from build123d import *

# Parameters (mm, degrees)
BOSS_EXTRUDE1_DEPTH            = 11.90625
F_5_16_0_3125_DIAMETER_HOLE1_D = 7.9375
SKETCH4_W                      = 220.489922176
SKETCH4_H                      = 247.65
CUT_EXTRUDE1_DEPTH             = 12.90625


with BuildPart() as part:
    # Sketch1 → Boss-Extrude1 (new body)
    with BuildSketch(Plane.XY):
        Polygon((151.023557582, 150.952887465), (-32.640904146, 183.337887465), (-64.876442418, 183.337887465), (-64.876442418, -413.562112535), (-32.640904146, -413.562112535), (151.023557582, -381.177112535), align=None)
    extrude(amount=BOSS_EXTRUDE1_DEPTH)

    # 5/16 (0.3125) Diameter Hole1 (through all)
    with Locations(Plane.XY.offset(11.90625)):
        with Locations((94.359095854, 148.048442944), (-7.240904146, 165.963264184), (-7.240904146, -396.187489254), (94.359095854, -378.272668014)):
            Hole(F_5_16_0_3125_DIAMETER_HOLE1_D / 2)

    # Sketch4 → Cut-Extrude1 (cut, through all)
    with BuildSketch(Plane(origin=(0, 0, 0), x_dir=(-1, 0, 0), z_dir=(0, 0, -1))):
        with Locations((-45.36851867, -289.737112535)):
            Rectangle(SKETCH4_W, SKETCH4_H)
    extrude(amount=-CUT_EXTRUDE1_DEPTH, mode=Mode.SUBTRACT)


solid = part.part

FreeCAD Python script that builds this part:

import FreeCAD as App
import Part
import Sketcher

V = App.Vector
Q = App.Units.Quantity


def add_polygon(sketch, points):
    """Adds a closed chain of lines whose ends are joined by coincident constraints."""
    first, n = sketch.GeometryCount, len(points)
    for a, b in zip(points, points[1:] + points[:1]):
        sketch.addGeometry(Part.LineSegment(App.Vector(*a, 0), App.Vector(*b, 0)), False)
    for i in range(n):
        sketch.addConstraint(Sketcher.Constraint("Coincident", first + i, 2, first + (i + 1) % n, 1))

doc = App.newDocument("Part")
params = doc.addObject("Spreadsheet::Sheet", "Params")
for row, (alias, value) in enumerate([
    ("sketch1_height", "23.5 in"),
    ("sketch1_height2", "20.95 in"),
    ("pad1_length", "0.46875 in"),
    ("sketch2_diameter", "0.3125 in"),
    ("hole_diameter", "0.3125 in"),
    ("sketch3_height", "9.75 in"),
], start=1):
    params.set(f"A{row}", alias)
    params.set(f"B{row}", "=" + value)
    params.setAlias(f"B{row}", alias)

body = doc.addObject("PartDesign::Body", "Body")

# Sketch on XY plane
sketch1 = body.newObject("Sketcher::SketchObject", "Sketch")
sketch1.AttachmentSupport = (doc.getObject("XY_Plane"), [""])
sketch1.MapMode = "FlatFace"
add_polygon(sketch1, [(151, 151), (-33, 183), (-65, 183), (-65, -414), (-33, -414), (151, -381)])  # lines 0-5
sketch1.addConstraint([
    Sketcher.Constraint("Horizontal", 1),
    Sketcher.Constraint("Vertical", 2),
    Sketcher.Constraint("Horizontal", 3),
    Sketcher.Constraint("Vertical", 5),
    Sketcher.Constraint("Vertical", 0, 2, 3, 2),
    Sketcher.Constraint("Equal", 0, 4),
    Sketcher.Constraint("DistanceY", 2, 2, 2, 1, Q("23.5 in")),
    Sketcher.Constraint("Angle", 0, Q("170 deg")),
    Sketcher.Constraint("DistanceY", 5, 1, 5, 2, Q("20.95 in")),
    Sketcher.Constraint("DistanceX", 2, 2, 4, 2, Q("8.5 in")),
    Sketcher.Constraint("DistanceX", 0, 2, -1, 1, Q("32.640904 mm")),
    Sketcher.Constraint("DistanceY", -1, 1, 0, 2, Q("183.337887 mm")),
])
sketch1.setExpression("Constraints[12]", "Params.sketch1_height")
sketch1.setExpression("Constraints[14]", "Params.sketch1_height2")
pad1 = body.newObject("PartDesign::Pad", "Pad")
pad1.Profile = sketch1
pad1.setExpression("Length", "Params.pad1_length")

# Sketch on XY plane
sketch2 = body.newObject("Sketcher::SketchObject", "Sketch001")
sketch2.AttachmentSupport = (doc.getObject("XY_Plane"), [""])
sketch2.MapMode = "FlatFace"
sketch2.AttachmentOffset = App.Placement(V(0, 0, 0.46875 * 25.4), App.Rotation())
sketch2.addGeometry([
    Part.Circle(V(94.4, 148, 0), V(0, 0, 1), 4),
    Part.Circle(V(-7.2, 166, 0), V(0, 0, 1), 4),
    Part.Circle(V(-7.2, -396.2, 0), V(0, 0, 1), 4),
    Part.Circle(V(94.4, -378.3, 0), V(0, 0, 1), 4),
], False)
sketch2.addConstraint([
    Sketcher.Constraint("Equal", 0, 1),
    Sketcher.Constraint("Equal", 1, 2),
    Sketcher.Constraint("Equal", 2, 3),
    Sketcher.Constraint("Vertical", 1, 3, 2, 3),
    Sketcher.Constraint("Vertical", 0, 3, 3, 3),
    Sketcher.Constraint("Diameter", 0, Q("0.3125 in")),
    Sketcher.Constraint("DistanceX", 1, 3, 0, 3, Q("4 in")),
    Sketcher.Constraint("DistanceY", 2, 3, -1, 1, Q("396.187489 mm")),
    Sketcher.Constraint("DistanceY", 3, 3, -1, 1, Q("378.272668 mm")),
    Sketcher.Constraint("DistanceY", 0, 3, 1, 3, Q("17.914821 mm")),
    Sketcher.Constraint("DistanceY", 3, 3, 0, 3, Q("526.321111 mm")),
    Sketcher.Constraint("DistanceX", -1, 1, 0, 3, Q("94.359096 mm")),
])
sketch2.setExpression("Constraints[5]", "Params.sketch2_diameter")
doc.recompute()
hole = body.newObject("PartDesign::Hole", "Hole")
hole.Profile = sketch2
hole.ThreadType = "None"
hole.setExpression("Diameter", "Params.hole_diameter")
hole.DepthType = "ThroughAll"

# Sketch on XY plane
sketch3 = body.newObject("Sketcher::SketchObject", "Sketch002")
sketch3.AttachmentSupport = (doc.getObject("XY_Plane"), [""])
sketch3.MapMode = "FlatFace"
add_polygon(sketch3, [(156, -166), (156, -414), (-65, -414), (-65, -166)])  # lines 0-3
sketch3.addConstraint([
    Sketcher.Constraint("Vertical", 0),
    Sketcher.Constraint("Horizontal", 1),
    Sketcher.Constraint("Vertical", 2),
    Sketcher.Constraint("Horizontal", 3),
    Sketcher.Constraint("DistanceY", 0, 2, 0, 1, Q("9.75 in")),
    Sketcher.Constraint("DistanceX", 1, 2, 1, 1, Q("220.489922 mm")),
    Sketcher.Constraint("DistanceX", -1, 1, 0, 2, Q("155.61348 mm")),
    Sketcher.Constraint("DistanceY", 0, 2, -1, 1, Q("413.562113 mm")),
])
sketch3.setExpression("Constraints[8]", "Params.sketch3_height")
pocket1 = body.newObject("PartDesign::Pocket", "Pocket")
pocket1.Profile = sketch3
pocket1.Type = "ThroughAll"
pocket1.Reversed = True

doc.recompute()
